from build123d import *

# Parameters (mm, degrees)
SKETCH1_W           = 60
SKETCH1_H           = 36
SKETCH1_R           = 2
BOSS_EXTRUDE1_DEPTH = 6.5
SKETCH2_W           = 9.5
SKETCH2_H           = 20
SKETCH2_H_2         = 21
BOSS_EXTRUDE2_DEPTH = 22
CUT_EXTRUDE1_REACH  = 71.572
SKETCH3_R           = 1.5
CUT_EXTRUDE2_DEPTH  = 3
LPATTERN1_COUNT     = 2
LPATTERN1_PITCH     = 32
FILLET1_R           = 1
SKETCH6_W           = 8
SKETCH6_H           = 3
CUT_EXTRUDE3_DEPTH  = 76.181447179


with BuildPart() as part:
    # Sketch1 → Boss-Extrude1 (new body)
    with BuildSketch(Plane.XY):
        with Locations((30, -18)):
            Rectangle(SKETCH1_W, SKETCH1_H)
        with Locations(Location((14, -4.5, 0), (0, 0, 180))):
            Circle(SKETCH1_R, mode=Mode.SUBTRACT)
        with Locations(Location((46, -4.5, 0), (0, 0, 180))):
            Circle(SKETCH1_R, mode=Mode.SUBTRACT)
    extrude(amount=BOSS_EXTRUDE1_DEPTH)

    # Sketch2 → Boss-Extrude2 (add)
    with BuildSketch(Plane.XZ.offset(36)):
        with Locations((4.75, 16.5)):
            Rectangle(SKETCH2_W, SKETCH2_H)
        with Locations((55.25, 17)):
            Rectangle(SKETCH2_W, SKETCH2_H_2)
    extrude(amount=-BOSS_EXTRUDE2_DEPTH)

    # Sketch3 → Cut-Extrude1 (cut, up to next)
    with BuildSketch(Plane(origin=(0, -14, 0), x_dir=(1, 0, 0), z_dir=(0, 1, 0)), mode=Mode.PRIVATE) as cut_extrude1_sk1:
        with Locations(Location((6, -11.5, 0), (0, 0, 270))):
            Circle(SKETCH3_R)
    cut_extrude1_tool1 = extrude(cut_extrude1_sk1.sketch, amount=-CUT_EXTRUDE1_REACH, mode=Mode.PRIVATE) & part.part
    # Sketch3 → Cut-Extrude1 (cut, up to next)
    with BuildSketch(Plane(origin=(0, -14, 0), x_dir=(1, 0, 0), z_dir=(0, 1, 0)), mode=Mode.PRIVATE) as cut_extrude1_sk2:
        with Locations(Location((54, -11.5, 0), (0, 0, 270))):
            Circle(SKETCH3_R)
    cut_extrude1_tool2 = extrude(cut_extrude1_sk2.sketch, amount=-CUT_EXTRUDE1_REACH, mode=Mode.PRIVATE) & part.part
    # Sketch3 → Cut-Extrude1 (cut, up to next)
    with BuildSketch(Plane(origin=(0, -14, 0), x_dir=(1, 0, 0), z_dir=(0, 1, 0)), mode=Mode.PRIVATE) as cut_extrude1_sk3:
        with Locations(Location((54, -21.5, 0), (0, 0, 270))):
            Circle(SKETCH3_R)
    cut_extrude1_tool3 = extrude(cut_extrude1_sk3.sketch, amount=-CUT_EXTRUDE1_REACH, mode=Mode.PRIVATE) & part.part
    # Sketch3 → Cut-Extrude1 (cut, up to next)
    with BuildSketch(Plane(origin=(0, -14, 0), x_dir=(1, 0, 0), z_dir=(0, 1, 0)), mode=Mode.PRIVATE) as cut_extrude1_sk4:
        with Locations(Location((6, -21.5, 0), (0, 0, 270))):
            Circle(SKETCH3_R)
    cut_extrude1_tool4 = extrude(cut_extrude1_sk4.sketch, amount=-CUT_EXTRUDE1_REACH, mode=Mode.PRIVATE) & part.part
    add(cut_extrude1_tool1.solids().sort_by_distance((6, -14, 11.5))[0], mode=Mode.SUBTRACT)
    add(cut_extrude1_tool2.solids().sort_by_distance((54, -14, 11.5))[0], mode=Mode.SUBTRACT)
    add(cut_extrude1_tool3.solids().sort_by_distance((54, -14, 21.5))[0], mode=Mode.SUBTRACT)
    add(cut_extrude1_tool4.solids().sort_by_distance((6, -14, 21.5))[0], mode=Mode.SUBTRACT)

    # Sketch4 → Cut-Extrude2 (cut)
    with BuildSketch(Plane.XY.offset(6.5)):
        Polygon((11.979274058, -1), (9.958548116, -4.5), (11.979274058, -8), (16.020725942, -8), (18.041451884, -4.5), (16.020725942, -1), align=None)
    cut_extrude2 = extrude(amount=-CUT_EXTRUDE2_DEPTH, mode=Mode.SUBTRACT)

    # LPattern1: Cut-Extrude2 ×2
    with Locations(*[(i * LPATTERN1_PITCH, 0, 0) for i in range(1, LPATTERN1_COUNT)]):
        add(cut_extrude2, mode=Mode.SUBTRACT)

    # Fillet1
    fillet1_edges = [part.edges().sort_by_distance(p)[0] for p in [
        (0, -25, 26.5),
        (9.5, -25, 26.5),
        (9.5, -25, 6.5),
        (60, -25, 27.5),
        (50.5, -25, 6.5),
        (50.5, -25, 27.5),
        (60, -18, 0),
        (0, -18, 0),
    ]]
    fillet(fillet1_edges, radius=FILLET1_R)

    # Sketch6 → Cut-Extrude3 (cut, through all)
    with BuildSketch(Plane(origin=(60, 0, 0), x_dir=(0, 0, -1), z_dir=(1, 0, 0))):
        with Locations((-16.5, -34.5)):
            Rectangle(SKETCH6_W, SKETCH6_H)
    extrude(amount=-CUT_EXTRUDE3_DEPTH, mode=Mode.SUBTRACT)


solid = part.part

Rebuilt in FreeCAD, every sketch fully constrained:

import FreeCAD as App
import Part
import Sketcher

V = App.Vector
Q = App.Units.Quantity


def edges_at(feature, points):
    """Names of the edges that pass closest to the given points."""
    edges = feature.Shape.Edges
    near = lambda p: min(range(len(edges)), key=lambda i: edges[i].distToShape(Part.Vertex(*p))[0])
    return sorted({f"Edge{near(p) + 1}" for p in points})


def add_polygon(sketch, points):
    """Adds a closed chain of lines whose ends are joined by coincident constraints."""
    first, n = sketch.GeometryCount, len(points)
    for a, b in zip(points, points[1:] + points[:1]):
        sketch.addGeometry(Part.LineSegment(App.Vector(*a, 0), App.Vector(*b, 0)), False)
    for i in range(n):
        sketch.addConstraint(Sketcher.Constraint("Coincident", first + i, 2, first + (i + 1) % n, 1))

doc = App.newDocument("Part")
body = doc.addObject("PartDesign::Body", "Body")

# Sketch on XY plane
sketch1 = body.newObject("Sketcher::SketchObject", "Sketch")
sketch1.AttachmentSupport = (doc.getObject("XY_Plane"), [""])
sketch1.MapMode = "FlatFace"
add_polygon(sketch1, [(0, 0), (0, -36), (60, -36), (60, 0)])  # lines 0-3
sketch1.addGeometry(Part.Circle(V(14, -4.5, 0), V(0, 0, 1), 2), False)  # 4
sketch1.addGeometry(Part.Circle(V(46, -4.5, 0), V(0, 0, 1), 2), False)  # 5
sketch1.addConstraint([
    Sketcher.Constraint("Vertical", 0),
    Sketcher.Constraint("Horizontal", 1),
    Sketcher.Constraint("Vertical", 2),
    Sketcher.Constraint("Horizontal", 3),
    Sketcher.Constraint("Coincident", 3, 2, -1, 1),
    Sketcher.Constraint("Equal", 4, 5),
    Sketcher.Constraint("Horizontal", 4, 3, 5, 3),
    Sketcher.Constraint("Diameter", 4, 4.0),
    Sketcher.Constraint("DistanceX", 1, 1, 1, 2, 60.0),
    Sketcher.Constraint("DistanceY", 0, 2, 0, 1, 36.0),
    Sketcher.Constraint("DistanceX", -1, 1, 4, 3, 14.0),
    Sketcher.Constraint("DistanceX", -1, 1, 5, 3, 46.0),
    Sketcher.Constraint("DistanceY", 4, 3, -1, 1, 4.5),
])
pad1 = body.newObject("PartDesign::Pad", "Pad")
pad1.Profile = sketch1
pad1.Length = 6.5

# Sketch on XZ plane
sketch2 = body.newObject("Sketcher::SketchObject", "Sketch001")
sketch2.AttachmentSupport = (doc.getObject("XZ_Plane"), [""])
sketch2.MapMode = "FlatFace"
sketch2.AttachmentOffset = App.Placement(V(0, 0, 36), App.Rotation())
add_polygon(sketch2, [(0, 26), (0, 6), (10, 6), (10, 26)])  # lines 0-3
add_polygon(sketch2, [(50, 28), (50, 6), (60, 6), (60, 28)])  # lines 4-7
sketch2.addConstraint([
    Sketcher.Constraint("Vertical", 0),
    Sketcher.Constraint("Horizontal", 1),
    Sketcher.Constraint("Vertical", 2),
    Sketcher.Constraint("Horizontal", 3),
    Sketcher.Constraint("Vertical", 4),
    Sketcher.Constraint("Horizontal", 5),
    Sketcher.Constraint("Vertical", 6),
    Sketcher.Constraint("Horizontal", 7),
    Sketcher.Constraint("PointOnObject", 0, 2, -2),
    Sketcher.Constraint("Horizontal", 1, 2, 4, 2),
    Sketcher.Constraint("Equal", 3, 5),
    Sketcher.Constraint("DistanceY", 0, 2, 0, 1, 20.0),
    Sketcher.Constraint("DistanceY", 4, 2, 4, 1, 21.0),
    Sketcher.Constraint("DistanceX", 1, 1, 1, 2, 9.5),
    Sketcher.Constraint("DistanceX", -1, 1, 5, 2, 60.0),
    Sketcher.Constraint("DistanceY", -1, 1, 0, 2, 6.5),
])
pad2 = body.newObject("PartDesign::Pad", "Pad001")
pad2.Profile = sketch2
pad2.Length = 22
pad2.Reversed = True

# Sketch on XZ plane
sketch3 = body.newObject("Sketcher::SketchObject", "Sketch002")
sketch3.AttachmentSupport = (doc.getObject("XZ_Plane"), [""])
sketch3.MapMode = "FlatFace"
sketch3.AttachmentOffset = App.Placement(V(0, 0, 14), App.Rotation())
sketch3.addGeometry(Part.Circle(V(6, 11.5, 0), V(0, 0, 1), 1.5), False)
sketch3.addConstraint([
    Sketcher.Constraint("Diameter", 0, 3.0),
    Sketcher.Constraint("DistanceX", -1, 1, 0, 3, 6.0),
    Sketcher.Constraint("DistanceY", -1, 1, 0, 3, 11.5),
])
pocket1 = body.newObject("PartDesign::Pocket", "Pocket")
pocket1.Profile = sketch3
pocket1.Type = "UpToFirst"
pocket1.Reversed = True

# Sketch on XZ plane
sketch4 = body.newObject("Sketcher::SketchObject", "Sketch003")
sketch4.AttachmentSupport = (doc.getObject("XZ_Plane"), [""])
sketch4.MapMode = "FlatFace"
sketch4.AttachmentOffset = App.Placement(V(0, 0, 14), App.Rotation())
sketch4.addGeometry(Part.Circle(V(54, 11.5, 0), V(0, 0, 1), 1.5), False)
sketch4.addConstraint([
    Sketcher.Constraint("Diameter", 0, 3.0),
    Sketcher.Constraint("DistanceX", -1, 1, 0, 3, 54.0),
    Sketcher.Constraint("DistanceY", -1, 1, 0, 3, 11.5),
])
pocket2 = body.newObject("PartDesign::Pocket", "Pocket001")
pocket2.Profile = sketch4
pocket2.Type = "UpToFirst"
pocket2.Reversed = True

# Sketch on XZ plane
sketch5 = body.newObject("Sketcher::SketchObject", "Sketch004")
sketch5.AttachmentSupport = (doc.getObject("XZ_Plane"), [""])
sketch5.MapMode = "FlatFace"
sketch5.AttachmentOffset = App.Placement(V(0, 0, 14), App.Rotation())
sketch5.addGeometry(Part.Circle(V(54, 21.5, 0), V(0, 0, 1), 1.5), False)
sketch5.addConstraint([
    Sketcher.Constraint("Diameter", 0, 3.0),
    Sketcher.Constraint("DistanceX", -1, 1, 0, 3, 54.0),
    Sketcher.Constraint("DistanceY", -1, 1, 0, 3, 21.5),
])
pocket3 = body.newObject("PartDesign::Pocket", "Pocket002")
pocket3.Profile = sketch5
pocket3.Type = "UpToFirst"
pocket3.Reversed = True

# Sketch on XZ plane
sketch6 = body.newObject("Sketcher::SketchObject", "Sketch005")
sketch6.AttachmentSupport = (doc.getObject("XZ_Plane"), [""])
sketch6.MapMode = "FlatFace"
sketch6.AttachmentOffset = App.Placement(V(0, 0, 14), App.Rotation())
sketch6.addGeometry(Part.Circle(V(6, 21.5, 0), V(0, 0, 1), 1.5), False)
sketch6.addConstraint([
    Sketcher.Constraint("Diameter", 0, 3.0),
    Sketcher.Constraint("DistanceX", -1, 1, 0, 3, 6.0),
    Sketcher.Constraint("DistanceY", -1, 1, 0, 3, 21.5),
])
pocket4 = body.newObject("PartDesign::Pocket", "Pocket003")
pocket4.Profile = sketch6
pocket4.Type = "UpToFirst"
pocket4.Reversed = True

# Sketch on XY plane
sketch7 = body.newObject("Sketcher::SketchObject", "Sketch006")
sketch7.AttachmentSupport = (doc.getObject("XY_Plane"), [""])
sketch7.MapMode = "FlatFace"
sketch7.AttachmentOffset = App.Placement(V(0, 0, 6.5), App.Rotation())
add_polygon(sketch7, [(12, -1), (10, -4.5), (12, -8), (16, -8), (18, -4.5), (16, -1)])  # lines 0-5
sketch7.addConstraint([
    Sketcher.Constraint("Horizontal", 2),
    Sketcher.Constraint("Horizontal", 5),
    Sketcher.Constraint("Parallel", 0, 3),
    Sketcher.Constraint("Parallel", 1, 4),
    Sketcher.Constraint("Horizontal", 0, 2, 3, 2),
    Sketcher.Constraint("Vertical", 2, 2, 4, 2),
    Sketcher.Constraint("Vertical", 1, 2, 5, 2),
    Sketcher.Constraint("Angle", 0, Q("-120 deg")),
    Sketcher.Constraint("DistanceY", 1, 2, -1, 1, 8.0),
    Sketcher.Constraint("DistanceY", 4, 2, -1, 1, 1.0),
    Sketcher.Constraint("DistanceX", 2, 1, 2, 2, 4.041452),
    Sketcher.Constraint("DistanceX", -1, 1, 0, 2, 9.958548),
])
pocket5 = body.newObject("PartDesign::Pocket", "Pocket004")
pocket5.Profile = sketch7
pocket5.Length = 3
doc.recompute()

linearpattern = body.newObject("PartDesign::LinearPattern", "LinearPattern")
linearpattern.Originals = [pocket5]
linearpattern.Direction = (doc.getObject("X_Axis"), [""])
linearpattern.Mode = "offset"
linearpattern.Offset = 32
linearpattern.Occurrences = 2
body.Tip = linearpattern
doc.recompute()

fillet = body.newObject("PartDesign::Fillet", "Fillet")
fillet.Base = (linearpattern, edges_at(linearpattern, [
    (0, -25, 26.5),
    (9.5, -25, 26.5),
    (9.5, -25, 6.5),
    (60, -25, 27.5),
    (50.5, -25, 6.5),
    (50.5, -25, 27.5),
    (60, -18, 0),
    (0, -18, 0),
]))
fillet.Radius = 1

# Sketch on YZ plane
sketch8 = body.newObject("Sketcher::SketchObject", "Sketch007")
sketch8.AttachmentSupport = (doc.getObject("YZ_Plane"), [""])
sketch8.MapMode = "FlatFace"
sketch8.AttachmentOffset = App.Placement(V(0, 0, 60), App.Rotation())
add_polygon(sketch8, [(-33, 20.5), (-36, 20.5), (-36, 12.5), (-33, 12.5)])  # lines 0-3
sketch8.addConstraint([
    Sketcher.Constraint("Horizontal", 0),
    Sketcher.Constraint("Vertical", 1),
    Sketcher.Constraint("Horizontal", 2),
    Sketcher.Constraint("Vertical", 3),
    Sketcher.Constraint("DistanceX", 0, 2, 0, 1, 3.0),
    Sketcher.Constraint("DistanceY", 1, 2, 1, 1, 8.0),
    Sketcher.Constraint("DistanceX", 0, 2, -1, 1, 36.0),
    Sketcher.Constraint("DistanceY", -1, 1, 0, 2, 20.5),
])
pocket6 = body.newObject("PartDesign::Pocket", "Pocket005")
pocket6.Profile = sketch8
pocket6.Type = "ThroughAll"

doc.recompute()
